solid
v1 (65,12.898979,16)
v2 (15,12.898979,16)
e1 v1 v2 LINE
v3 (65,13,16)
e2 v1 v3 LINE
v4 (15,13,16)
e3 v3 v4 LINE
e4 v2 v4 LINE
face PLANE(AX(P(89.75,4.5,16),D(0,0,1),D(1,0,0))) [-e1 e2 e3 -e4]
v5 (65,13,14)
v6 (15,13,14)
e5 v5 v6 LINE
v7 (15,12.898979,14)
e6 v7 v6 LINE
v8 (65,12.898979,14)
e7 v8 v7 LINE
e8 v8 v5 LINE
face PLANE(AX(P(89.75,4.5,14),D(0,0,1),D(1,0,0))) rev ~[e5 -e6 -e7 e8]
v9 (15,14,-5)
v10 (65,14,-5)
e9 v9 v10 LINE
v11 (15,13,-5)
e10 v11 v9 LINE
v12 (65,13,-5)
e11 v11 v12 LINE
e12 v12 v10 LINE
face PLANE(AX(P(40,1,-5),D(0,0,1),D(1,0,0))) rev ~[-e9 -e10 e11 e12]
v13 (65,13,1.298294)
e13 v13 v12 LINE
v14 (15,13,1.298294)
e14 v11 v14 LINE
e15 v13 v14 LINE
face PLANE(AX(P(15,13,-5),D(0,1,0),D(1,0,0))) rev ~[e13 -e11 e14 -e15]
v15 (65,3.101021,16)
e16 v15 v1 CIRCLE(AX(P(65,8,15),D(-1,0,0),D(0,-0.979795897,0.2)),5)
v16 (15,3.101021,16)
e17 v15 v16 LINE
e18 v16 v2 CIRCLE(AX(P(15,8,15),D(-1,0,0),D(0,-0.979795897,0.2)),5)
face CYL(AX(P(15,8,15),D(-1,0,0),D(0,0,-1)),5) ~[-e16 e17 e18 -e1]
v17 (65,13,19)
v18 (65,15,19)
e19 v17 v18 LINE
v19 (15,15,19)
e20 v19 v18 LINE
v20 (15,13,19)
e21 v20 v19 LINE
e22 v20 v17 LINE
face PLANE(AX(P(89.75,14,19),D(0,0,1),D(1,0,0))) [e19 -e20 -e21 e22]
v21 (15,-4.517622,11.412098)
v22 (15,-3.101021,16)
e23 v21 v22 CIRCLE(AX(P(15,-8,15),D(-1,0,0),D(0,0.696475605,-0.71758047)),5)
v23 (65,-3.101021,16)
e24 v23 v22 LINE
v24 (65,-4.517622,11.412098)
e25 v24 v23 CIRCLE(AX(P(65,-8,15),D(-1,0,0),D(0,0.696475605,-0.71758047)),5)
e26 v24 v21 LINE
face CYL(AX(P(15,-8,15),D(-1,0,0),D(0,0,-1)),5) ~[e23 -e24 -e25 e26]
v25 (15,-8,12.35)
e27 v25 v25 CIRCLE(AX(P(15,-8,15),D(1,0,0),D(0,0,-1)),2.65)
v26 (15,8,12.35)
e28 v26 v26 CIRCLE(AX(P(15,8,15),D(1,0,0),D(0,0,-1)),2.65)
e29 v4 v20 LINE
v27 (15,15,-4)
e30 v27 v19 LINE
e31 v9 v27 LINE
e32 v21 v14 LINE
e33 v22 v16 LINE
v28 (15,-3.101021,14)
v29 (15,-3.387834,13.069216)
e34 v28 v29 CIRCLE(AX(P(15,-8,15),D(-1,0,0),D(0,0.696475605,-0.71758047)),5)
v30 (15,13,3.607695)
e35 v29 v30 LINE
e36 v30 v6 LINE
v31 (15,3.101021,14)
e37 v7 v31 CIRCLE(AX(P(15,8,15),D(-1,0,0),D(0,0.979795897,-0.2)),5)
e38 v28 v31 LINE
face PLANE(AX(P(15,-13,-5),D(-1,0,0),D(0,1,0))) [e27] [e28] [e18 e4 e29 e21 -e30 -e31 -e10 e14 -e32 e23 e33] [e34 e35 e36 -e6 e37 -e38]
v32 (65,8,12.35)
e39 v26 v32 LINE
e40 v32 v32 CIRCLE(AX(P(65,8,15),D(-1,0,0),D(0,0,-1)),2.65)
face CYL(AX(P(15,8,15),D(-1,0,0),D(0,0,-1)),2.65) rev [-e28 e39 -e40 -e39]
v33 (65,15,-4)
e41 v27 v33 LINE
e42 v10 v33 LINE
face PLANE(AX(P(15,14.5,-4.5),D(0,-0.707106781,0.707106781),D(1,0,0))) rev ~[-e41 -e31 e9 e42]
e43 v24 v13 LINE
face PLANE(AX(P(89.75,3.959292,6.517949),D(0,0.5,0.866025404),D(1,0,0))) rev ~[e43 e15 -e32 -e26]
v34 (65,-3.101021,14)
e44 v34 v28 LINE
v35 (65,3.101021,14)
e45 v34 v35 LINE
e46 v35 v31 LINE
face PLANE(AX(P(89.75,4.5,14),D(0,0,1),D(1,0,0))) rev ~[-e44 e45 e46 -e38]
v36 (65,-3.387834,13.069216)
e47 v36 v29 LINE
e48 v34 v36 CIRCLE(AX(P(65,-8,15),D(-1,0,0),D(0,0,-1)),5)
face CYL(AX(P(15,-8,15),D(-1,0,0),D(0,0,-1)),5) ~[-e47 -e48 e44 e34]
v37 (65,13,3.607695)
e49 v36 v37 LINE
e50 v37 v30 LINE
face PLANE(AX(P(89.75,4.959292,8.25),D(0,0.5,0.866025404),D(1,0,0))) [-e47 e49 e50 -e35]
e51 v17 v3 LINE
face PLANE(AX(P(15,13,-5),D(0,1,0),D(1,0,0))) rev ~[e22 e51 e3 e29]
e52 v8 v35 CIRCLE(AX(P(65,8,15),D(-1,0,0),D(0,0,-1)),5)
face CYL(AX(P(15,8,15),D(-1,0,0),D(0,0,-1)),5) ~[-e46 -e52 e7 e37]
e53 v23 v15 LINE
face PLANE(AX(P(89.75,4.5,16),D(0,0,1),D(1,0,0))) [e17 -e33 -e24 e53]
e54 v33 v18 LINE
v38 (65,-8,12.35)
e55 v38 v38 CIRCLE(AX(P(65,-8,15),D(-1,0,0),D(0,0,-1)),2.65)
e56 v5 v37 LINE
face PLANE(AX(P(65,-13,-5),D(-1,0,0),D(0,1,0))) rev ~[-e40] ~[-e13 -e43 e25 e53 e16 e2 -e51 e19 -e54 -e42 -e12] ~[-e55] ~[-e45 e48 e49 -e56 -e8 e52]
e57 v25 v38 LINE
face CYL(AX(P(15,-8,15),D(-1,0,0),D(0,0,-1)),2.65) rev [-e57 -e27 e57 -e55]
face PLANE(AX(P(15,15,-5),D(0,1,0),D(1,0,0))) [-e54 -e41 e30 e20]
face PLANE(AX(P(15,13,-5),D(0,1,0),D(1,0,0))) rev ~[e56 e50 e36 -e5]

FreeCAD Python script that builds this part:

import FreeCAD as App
import Part
import Sketcher
Q = App.Units.Quantity


def edges_at(feature, points):
    """Names of the edges that pass closest to the given points."""
    edges = feature.Shape.Edges
    near = lambda p: min(range(len(edges)), key=lambda i: edges[i].distToShape(Part.Vertex(*p))[0])
    return sorted({f"Edge{near(p) + 1}" for p in points})

doc = App.newDocument("Part")
body = doc.addObject("PartDesign::Body", "Body")

# Sketch on YZ plane
sketch1 = body.newObject("Sketcher::SketchObject", "Sketch")
sketch1.AttachmentSupport = (doc.getObject("YZ_Plane"), [""])
sketch1.MapMode = "FlatFace"
sketch1.AttachmentOffset = App.Placement(App.Vector(0, 0, 15), App.Rotation())
sketch1.addGeometry(Part.Circle(App.Vector(8, 15, 0), App.Vector(0, 0, 1), 2.65), False)
sketch1.addConstraint([
    Sketcher.Constraint("Diameter", 0, Q("5.3 mm")),
    Sketcher.Constraint("DistanceX", -1, 1, 0, 3, Q("8 mm")),
    Sketcher.Constraint("DistanceY", -1, 1, 0, 3, Q("15 mm")),
])
pad1 = body.newObject("PartDesign::Pad", "Pad")
pad1.Profile = sketch1
pad1.Length = 149.5
body2 = doc.addObject("PartDesign::Body", "Body001")
body2.AllowCompound = True

# Sketch on YZ plane
sketch2 = body2.newObject("Sketcher::SketchObject", "Sketch001")
sketch2.AttachmentSupport = (doc.getObject("YZ_Plane001"), [""])
sketch2.MapMode = "FlatFace"
sketch2.AttachmentOffset = App.Placement(App.Vector(0, 0, 15), App.Rotation())
sketch2.addGeometry(Part.Circle(App.Vector(-8, 15, 0), App.Vector(0, 0, 1), 2.65), False)
sketch2.addConstraint([
    Sketcher.Constraint("Diameter", 0, Q("5.3 mm")),
    Sketcher.Constraint("DistanceX", 0, 3, -1, 1, Q("8 mm")),
    Sketcher.Constraint("DistanceY", -1, 1, 0, 3, Q("15 mm")),
])
pad2 = body2.newObject("PartDesign::Pad", "Pad001")
pad2.Profile = sketch2
pad2.Length = 149.5
doc.recompute()

boolean = body2.newObject("PartDesign::Boolean", "Boolean")
boolean.Type = "Fuse"
boolean.addObjects([body])
body3 = doc.addObject("PartDesign::Body", "Body002")

# Sketch on YZ plane
sketch3 = body3.newObject("Sketcher::SketchObject", "Sketch002")
sketch3.AttachmentSupport = (doc.getObject("YZ_Plane002"), [""])
sketch3.MapMode = "FlatFace"
sketch3.AttachmentOffset = App.Placement(App.Vector(0, 0, 15), App.Rotation())
sketch3.addGeometry(Part.Circle(App.Vector(-8, 15, 0), App.Vector(0, 0, 1), 5), False)
sketch3.addConstraint([
    Sketcher.Constraint("Diameter", 0, Q("10 mm")),
    Sketcher.Constraint("DistanceX", 0, 3, -1, 1, Q("8 mm")),
    Sketcher.Constraint("DistanceY", -1, 1, 0, 3, Q("15 mm")),
])
pad3 = body3.newObject("PartDesign::Pad", "Pad002")
pad3.Profile = sketch3
pad3.Length = 149.5
body4 = doc.addObject("PartDesign::Body", "Body003")

# Sketch on XY plane
sketch4 = body4.newObject("Sketcher::SketchObject", "Sketch003")
sketch4.AttachmentSupport = (doc.getObject("XY_Plane003"), [""])
sketch4.MapMode = "FlatFace"
sketch4.addGeometry([
    Part.LineSegment(App.Vector(0, 23, 0), App.Vector(0, 0, 0)),
    Part.LineSegment(App.Vector(0, 0, 0), App.Vector(149.5, 0, 0)),
    Part.LineSegment(App.Vector(149.5, 0, 0), App.Vector(149.5, 23, 0)),
    Part.LineSegment(App.Vector(149.5, 23, 0), App.Vector(0, 23, 0)),
], False)
sketch4.addConstraint([
    Sketcher.Constraint("Coincident", 0, 2, 1, 1),
    Sketcher.Constraint("Coincident", 1, 2, 2, 1),
    Sketcher.Constraint("Coincident", 2, 2, 3, 1),
    Sketcher.Constraint("Coincident", 3, 2, 0, 1),
    Sketcher.Constraint("Vertical", 0),
    Sketcher.Constraint("Horizontal", 1),
    Sketcher.Constraint("Vertical", 2),
    Sketcher.Constraint("Horizontal", 3),
    Sketcher.Constraint("Coincident", 0, 2, -1, 1),
    Sketcher.Constraint("DistanceY", 0, 2, 0, 1, Q("23 mm")),
    Sketcher.Constraint("DistanceX", 1, 1, 1, 2, Q("149.5 mm")),
])
pad4 = body4.newObject("PartDesign::Pad", "Pad003")
pad4.Profile = sketch4
pad4.Length = 2
body5 = doc.addObject("PartDesign::Body", "Body004")
doc.recompute()

body4.Placement = App.Placement(App.Vector(15, -6, 12.267949), App.Rotation(App.Vector(-1, 0, 0), 30))
boolean2 = body5.newObject("PartDesign::Boolean", "Boolean001")
boolean2.Type = "Fuse"
boolean2.addObjects([body4])
body6 = doc.addObject("PartDesign::Body", "Body005")

# Sketch on XY plane
sketch5 = body6.newObject("Sketcher::SketchObject", "Sketch004")
sketch5.AttachmentSupport = (doc.getObject("XY_Plane005"), [""])
sketch5.MapMode = "FlatFace"
sketch5.AttachmentOffset = App.Placement(App.Vector(0, 0, 14), App.Rotation())
sketch5.addGeometry([
    Part.LineSegment(App.Vector(15, 14, 0), App.Vector(15, -5, 0)),
    Part.LineSegment(App.Vector(15, -5, 0), App.Vector(164.5, -5, 0)),
    Part.LineSegment(App.Vector(164.5, -5, 0), App.Vector(164.5, 14, 0)),
    Part.LineSegment(App.Vector(164.5, 14, 0), App.Vector(15, 14, 0)),
], False)
sketch5.addConstraint([
    Sketcher.Constraint("Coincident", 0, 2, 1, 1),
    Sketcher.Constraint("Coincident", 1, 2, 2, 1),
    Sketcher.Constraint("Coincident", 2, 2, 3, 1),
    Sketcher.Constraint("Coincident", 3, 2, 0, 1),
    Sketcher.Constraint("Vertical", 0),
    Sketcher.Constraint("Horizontal", 1),
    Sketcher.Constraint("Vertical", 2),
    Sketcher.Constraint("Horizontal", 3),
    Sketcher.Constraint("DistanceY", 0, 2, 0, 1, Q("19 mm")),
    Sketcher.Constraint("DistanceX", 1, 1, 1, 2, Q("149.5 mm")),
    Sketcher.Constraint("DistanceX", -1, 1, 0, 2, Q("15 mm")),
    Sketcher.Constraint("DistanceY", 0, 2, -1, 1, Q("5 mm")),
])
pad5 = body6.newObject("PartDesign::Pad", "Pad004")
pad5.Profile = sketch5
pad5.Length = 2
body7 = doc.addObject("PartDesign::Body", "Body006")

# Sketch on XY plane
sketch6 = body7.newObject("Sketcher::SketchObject", "Sketch005")
sketch6.AttachmentSupport = (doc.getObject("XY_Plane006"), [""])
sketch6.MapMode = "FlatFace"
sketch6.AttachmentOffset = App.Placement(App.Vector(0, 0, -5), App.Rotation())
sketch6.addGeometry([
    Part.LineSegment(App.Vector(15, 15, 0), App.Vector(15, 13, 0)),
    Part.LineSegment(App.Vector(15, 13, 0), App.Vector(164.5, 13, 0)),
    Part.LineSegment(App.Vector(164.5, 13, 0), App.Vector(164.5, 15, 0)),
    Part.LineSegment(App.Vector(164.5, 15, 0), App.Vector(15, 15, 0)),
], False)
sketch6.addConstraint([
    Sketcher.Constraint("Coincident", 0, 2, 1, 1),
    Sketcher.Constraint("Coincident", 1, 2, 2, 1),
    Sketcher.Constraint("Coincident", 2, 2, 3, 1),
    Sketcher.Constraint("Coincident", 3, 2, 0, 1),
    Sketcher.Constraint("Vertical", 0),
    Sketcher.Constraint("Horizontal", 1),
    Sketcher.Constraint("Vertical", 2),
    Sketcher.Constraint("Horizontal", 3),
    Sketcher.Constraint("DistanceY", 0, 2, 0, 1, Q("2 mm")),
    Sketcher.Constraint("DistanceX", 1, 1, 1, 2, Q("149.5 mm")),
    Sketcher.Constraint("DistanceX", -1, 1, 0, 2, Q("15 mm")),
    Sketcher.Constraint("DistanceY", -1, 1, 0, 2, Q("13 mm")),
])
pad6 = body7.newObject("PartDesign::Pad", "Pad005")
pad6.Profile = sketch6
pad6.Length = 24
body8 = doc.addObject("PartDesign::Body", "Body007")
body8.AllowCompound = True

# Sketch on YZ plane
sketch7 = body8.newObject("Sketcher::SketchObject", "Sketch006")
sketch7.AttachmentSupport = (doc.getObject("YZ_Plane007"), [""])
sketch7.MapMode = "FlatFace"
sketch7.AttachmentOffset = App.Placement(App.Vector(0, 0, 15), App.Rotation())
sketch7.addGeometry(Part.Circle(App.Vector(8, 15, 0), App.Vector(0, 0, 1), 5), False)
sketch7.addConstraint([
    Sketcher.Constraint("Diameter", 0, Q("10 mm")),
    Sketcher.Constraint("DistanceX", -1, 1, 0, 3, Q("8 mm")),
    Sketcher.Constraint("DistanceY", -1, 1, 0, 3, Q("15 mm")),
])
pad7 = body8.newObject("PartDesign::Pad", "Pad006")
pad7.Profile = sketch7
pad7.Length = 149.5
doc.recompute()

boolean3 = body8.newObject("PartDesign::Boolean", "Boolean002")
boolean3.Type = "Fuse"
boolean3.addObjects([body3])
doc.recompute()

boolean4 = body8.newObject("PartDesign::Boolean", "Boolean003")
boolean4.Type = "Fuse"
boolean4.addObjects([body5])
doc.recompute()

boolean5 = body8.newObject("PartDesign::Boolean", "Boolean004")
boolean5.Type = "Fuse"
boolean5.addObjects([body6])
doc.recompute()

boolean6 = body8.newObject("PartDesign::Boolean", "Boolean005")
boolean6.Type = "Fuse"
boolean6.addObjects([body7])
doc.recompute()

chamfer = body8.newObject("PartDesign::Chamfer", "Chamfer")
chamfer.Base = (boolean6, edges_at(boolean6, [(89.75, 15, -5)]))
chamfer.Size = 1
doc.recompute()

boolean7 = body8.newObject("PartDesign::Boolean", "Boolean006")
boolean7.Type = "Cut"
boolean7.addObjects([body2])
body9 = doc.addObject("PartDesign::Body", "Body008")

# Sketch on XY plane
sketch8 = body9.newObject("Sketcher::SketchObject", "Sketch007")
sketch8.AttachmentSupport = (doc.getObject("XY_Plane008"), [""])
sketch8.MapMode = "FlatFace"
sketch8.AttachmentOffset = App.Placement(App.Vector(0, 0, -5), App.Rotation())
sketch8.addGeometry([
    Part.LineSegment(App.Vector(15, 15, 0), App.Vector(15, -13, 0)),
    Part.LineSegment(App.Vector(15, -13, 0), App.Vector(65, -13, 0)),
    Part.LineSegment(App.Vector(65, -13, 0), App.Vector(65, 15, 0)),
    Part.LineSegment(App.Vector(65, 15, 0), App.Vector(15, 15, 0)),
], False)
sketch8.addConstraint([
    Sketcher.Constraint("Coincident", 0, 2, 1, 1),
    Sketcher.Constraint("Coincident", 1, 2, 2, 1),
    Sketcher.Constraint("Coincident", 2, 2, 3, 1),
    Sketcher.Constraint("Coincident", 3, 2, 0, 1),
    Sketcher.Constraint("Vertical", 0),
    Sketcher.Constraint("Horizontal", 1),
    Sketcher.Constraint("Vertical", 2),
    Sketcher.Constraint("Horizontal", 3),
    Sketcher.Constraint("DistanceX", 1, 1, 1, 2, Q("50 mm")),
    Sketcher.Constraint("DistanceY", 0, 2, 0, 1, Q("28 mm")),
    Sketcher.Constraint("DistanceX", -1, 1, 0, 2, Q("15 mm")),
    Sketcher.Constraint("DistanceY", 0, 2, -1, 1, Q("13 mm")),
])
pad8 = body9.newObject("PartDesign::Pad", "Pad007")
pad8.Profile = sketch8
pad8.Length = 25
doc.recompute()

boolean8 = body9.newObject("PartDesign::Boolean", "Boolean007")
boolean8.Type = "Common"
boolean8.addObjects([body8])

doc.recompute()
